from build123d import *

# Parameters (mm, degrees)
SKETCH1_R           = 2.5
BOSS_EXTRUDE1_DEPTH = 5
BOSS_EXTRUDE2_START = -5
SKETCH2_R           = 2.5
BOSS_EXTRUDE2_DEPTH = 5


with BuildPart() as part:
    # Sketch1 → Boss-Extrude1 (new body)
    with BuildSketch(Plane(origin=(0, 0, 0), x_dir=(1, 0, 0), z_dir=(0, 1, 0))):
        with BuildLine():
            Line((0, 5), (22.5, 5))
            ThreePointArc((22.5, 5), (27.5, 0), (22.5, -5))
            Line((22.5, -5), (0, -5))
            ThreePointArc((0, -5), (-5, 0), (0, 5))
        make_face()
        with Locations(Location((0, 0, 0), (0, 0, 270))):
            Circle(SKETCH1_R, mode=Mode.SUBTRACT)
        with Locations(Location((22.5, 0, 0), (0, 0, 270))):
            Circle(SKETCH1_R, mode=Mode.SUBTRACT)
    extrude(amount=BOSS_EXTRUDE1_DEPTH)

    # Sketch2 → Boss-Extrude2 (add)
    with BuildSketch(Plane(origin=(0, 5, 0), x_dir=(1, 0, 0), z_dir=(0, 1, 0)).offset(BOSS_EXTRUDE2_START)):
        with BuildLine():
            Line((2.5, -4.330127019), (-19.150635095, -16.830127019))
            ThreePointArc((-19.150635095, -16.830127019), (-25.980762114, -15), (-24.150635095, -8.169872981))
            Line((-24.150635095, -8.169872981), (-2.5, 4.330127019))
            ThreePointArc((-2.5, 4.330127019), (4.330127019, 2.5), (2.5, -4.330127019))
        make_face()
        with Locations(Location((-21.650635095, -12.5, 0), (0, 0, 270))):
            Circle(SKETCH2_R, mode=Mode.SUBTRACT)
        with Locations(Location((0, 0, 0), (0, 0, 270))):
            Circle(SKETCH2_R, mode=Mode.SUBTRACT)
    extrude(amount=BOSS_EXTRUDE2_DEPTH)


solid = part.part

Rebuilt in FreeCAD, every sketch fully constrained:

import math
import FreeCAD as App
import Part
import Sketcher
Q = App.Units.Quantity

doc = App.newDocument("Part")
body = doc.addObject("PartDesign::Body", "Body")

# Sketch on XZ plane
sketch1 = body.newObject("Sketcher::SketchObject", "Sketch")
sketch1.AttachmentSupport = (doc.getObject("XZ_Plane"), [""])
sketch1.MapMode = "FlatFace"
sketch1.addGeometry([
    Part.LineSegment(App.Vector(22.5, -5, 0), App.Vector(0, -5, 0)),  # 0
    Part.ArcOfCircle(Part.Circle(App.Vector(0, 0, 0), App.Vector(0, 0, 1), 5), math.radians(90), math.radians(270)),  # 1
    Part.LineSegment(App.Vector(0, 5, 0), App.Vector(22.5, 5, 0)),  # 2
    Part.ArcOfCircle(Part.Circle(App.Vector(22.5, 0, 0), App.Vector(0, 0, 1), 5), math.radians(-90), math.radians(90)),  # 3
    Part.Circle(App.Vector(22.5, 0, 0), App.Vector(0, 0, 1), 2.5),  # 4
    Part.Circle(App.Vector(0, 0, 0), App.Vector(0, 0, 1), 2.5),  # 5
], False)
sketch1.addConstraint([
    Sketcher.Constraint("Tangent", 0, 2, 1, 2),
    Sketcher.Constraint("Tangent", 1, 1, 2, 1),
    Sketcher.Constraint("Tangent", 2, 2, 3, 2),
    Sketcher.Constraint("Tangent", 3, 1, 0, 1),
    Sketcher.Constraint("Horizontal", 0),
    Sketcher.Constraint("Horizontal", 2),
    Sketcher.Constraint("Coincident", 1, 3, -1, 1),
    Sketcher.Constraint("Coincident", 5, 3, -1, 1),
    Sketcher.Constraint("Coincident", 4, 3, 3, 3),
    Sketcher.Constraint("Equal", 4, 5),
    Sketcher.Constraint("Diameter", 4, Q("5 mm")),
    Sketcher.Constraint("Radius", 1, Q("5 mm")),
    Sketcher.Constraint("DistanceX", 0, 2, 0, 1, Q("22.5 mm")),
])
pad1 = body.newObject("PartDesign::Pad", "Pad")
pad1.Profile = sketch1
pad1.Length = 5
pad1.Reversed = True

# Sketch on XZ plane
sketch2 = body.newObject("Sketcher::SketchObject", "Sketch001")
sketch2.AttachmentSupport = (doc.getObject("XZ_Plane"), [""])
sketch2.MapMode = "FlatFace"
sketch2.addGeometry([
    Part.LineSegment(App.Vector(-19.2, 16.8, 0), App.Vector(2.5, 4.3, 0)),  # 0
    Part.ArcOfCircle(Part.Circle(App.Vector(0, 0, 0), App.Vector(0, 0, 1), 5), math.radians(-120), math.radians(60)),  # 1
    Part.LineSegment(App.Vector(-2.5, -4.3, 0), App.Vector(-24.2, 8.2, 0)),  # 2
    Part.ArcOfCircle(Part.Circle(App.Vector(-21.7, 12.5, 0), App.Vector(0, 0, 1), 5), math.radians(60), math.radians(240)),  # 3
    Part.Circle(App.Vector(-21.7, 12.5, 0), App.Vector(0, 0, 1), 2.5),  # 4
    Part.Circle(App.Vector(0, 0, 0), App.Vector(0, 0, 1), 2.5),  # 5
], False)
sketch2.addConstraint([
    Sketcher.Constraint("Tangent", 0, 2, 1, 2),
    Sketcher.Constraint("Tangent", 1, 1, 2, 1),
    Sketcher.Constraint("Tangent", 2, 2, 3, 2),
    Sketcher.Constraint("Tangent", 3, 1, 0, 1),
    Sketcher.Constraint("Coincident", 1, 3, -1, 1),
    Sketcher.Constraint("Coincident", 5, 3, -1, 1),
    Sketcher.Constraint("Coincident", 4, 3, 3, 3),
    Sketcher.Constraint("Equal", 1, 3),
    Sketcher.Constraint("Equal", 4, 5),
    Sketcher.Constraint("Diameter", 4, Q("5 mm")),
    Sketcher.Constraint("Radius", 1, Q("5 mm")),
    Sketcher.Constraint("Angle", 0, Q("-30 deg")),
    Sketcher.Constraint("Distance", 0, Q("25 mm")),
])
pad2 = body.newObject("PartDesign::Pad", "Pad001")
pad2.Profile = sketch2
pad2.Length = 5
pad2.Reversed = True

doc.recompute()
